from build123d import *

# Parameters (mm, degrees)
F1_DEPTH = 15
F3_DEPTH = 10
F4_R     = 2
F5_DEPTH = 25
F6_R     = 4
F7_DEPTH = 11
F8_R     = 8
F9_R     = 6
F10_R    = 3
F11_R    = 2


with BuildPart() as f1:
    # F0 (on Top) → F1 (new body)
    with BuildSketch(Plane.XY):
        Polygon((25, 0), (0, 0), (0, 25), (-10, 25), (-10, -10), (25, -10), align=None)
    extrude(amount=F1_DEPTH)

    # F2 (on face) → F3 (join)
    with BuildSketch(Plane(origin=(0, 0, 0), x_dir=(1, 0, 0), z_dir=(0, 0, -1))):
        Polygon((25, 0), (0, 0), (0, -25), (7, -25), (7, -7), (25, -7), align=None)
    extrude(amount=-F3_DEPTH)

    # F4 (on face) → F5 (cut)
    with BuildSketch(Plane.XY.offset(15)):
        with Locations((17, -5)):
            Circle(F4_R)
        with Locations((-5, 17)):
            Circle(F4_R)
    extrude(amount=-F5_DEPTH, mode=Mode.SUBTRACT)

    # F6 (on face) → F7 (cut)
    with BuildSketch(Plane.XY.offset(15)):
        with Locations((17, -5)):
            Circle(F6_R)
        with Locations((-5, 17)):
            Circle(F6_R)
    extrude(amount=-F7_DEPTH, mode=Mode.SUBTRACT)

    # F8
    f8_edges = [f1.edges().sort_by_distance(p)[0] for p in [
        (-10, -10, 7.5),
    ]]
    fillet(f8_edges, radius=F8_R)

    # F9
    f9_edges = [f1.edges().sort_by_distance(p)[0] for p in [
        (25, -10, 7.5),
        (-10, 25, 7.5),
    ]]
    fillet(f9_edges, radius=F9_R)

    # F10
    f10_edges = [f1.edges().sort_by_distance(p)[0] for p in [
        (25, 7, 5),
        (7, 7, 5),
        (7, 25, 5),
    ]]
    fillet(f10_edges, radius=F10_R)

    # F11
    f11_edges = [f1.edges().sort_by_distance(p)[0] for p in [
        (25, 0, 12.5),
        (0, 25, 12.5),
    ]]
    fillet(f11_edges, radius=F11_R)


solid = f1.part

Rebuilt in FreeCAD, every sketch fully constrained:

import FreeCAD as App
import Part
import Sketcher
Q = App.Units.Quantity


def edges_at(feature, points):
    """Names of the edges that pass closest to the given points."""
    edges = feature.Shape.Edges
    near = lambda p: min(range(len(edges)), key=lambda i: edges[i].distToShape(Part.Vertex(*p))[0])
    return sorted({f"Edge{near(p) + 1}" for p in points})


def add_polygon(sketch, points):
    """Adds a closed chain of lines whose ends are joined by coincident constraints."""
    first, n = sketch.GeometryCount, len(points)
    for a, b in zip(points, points[1:] + points[:1]):
        sketch.addGeometry(Part.LineSegment(App.Vector(*a, 0), App.Vector(*b, 0)), False)
    for i in range(n):
        sketch.addConstraint(Sketcher.Constraint("Coincident", first + i, 2, first + (i + 1) % n, 1))

doc = App.newDocument("Part")
params = doc.addObject("Spreadsheet::Sheet", "Params")
for row, (alias, value) in enumerate([
    ("sketch1_width", "25 mm"),
    ("sketch1_width2", "10 mm"),
    ("pad1_length", "15 mm"),
    ("sketch2_width", "25 mm"),
    ("sketch2_width2", "7 mm"),
    ("pad2_length", "10 mm"),
    ("sketch3_diameter", "4 mm"),
    ("pocket1_length", "25 mm"),
    ("sketch4_diameter", "8 mm"),
    ("pocket2_length", "11 mm"),
    ("fillet_radius", "8 mm"),
    ("fillet2_radius", "6 mm"),
    ("fillet3_radius", "3 mm"),
    ("fillet4_radius", "2 mm"),
], start=1):
    params.set(f"A{row}", alias)
    params.set(f"B{row}", "=" + value)
    params.setAlias(f"B{row}", alias)

body = doc.addObject("PartDesign::Body", "Body")

sketch1 = body.newObject("Sketcher::SketchObject", "Sketch")
sketch1.AttachmentSupport = (doc.getObject("XY_Plane"), [""])
sketch1.MapMode = "FlatFace"
add_polygon(sketch1, [(25, 0), (0, 0), (0, 25), (-10, 25), (-10, -10), (25, -10)])
sketch1.addConstraint(Sketcher.Constraint("Horizontal", 0))
sketch1.addConstraint(Sketcher.Constraint("Vertical", 1))
sketch1.addConstraint(Sketcher.Constraint("Horizontal", 2))
sketch1.addConstraint(Sketcher.Constraint("Vertical", 3))
sketch1.addConstraint(Sketcher.Constraint("Horizontal", 4))
sketch1.addConstraint(Sketcher.Constraint("Vertical", 5))
sketch1.addConstraint(Sketcher.Constraint("Coincident", 0, 2, -1, 1))
sketch1.addConstraint(Sketcher.Constraint("Equal", 0, 1))
sketch1.addConstraint(Sketcher.Constraint("Equal", 4, 3))
sketch1.addConstraint(Sketcher.Constraint("DistanceX", 0, 2, 0, 1, Q("25 mm")))
sketch1.addConstraint(Sketcher.Constraint("DistanceX", 2, 2, 2, 1, Q("10 mm")))
sketch1.setExpression("Constraints[15]", "Params.sketch1_width")
sketch1.setExpression("Constraints[16]", "Params.sketch1_width2")
pad1 = body.newObject("PartDesign::Pad", "Pad")
pad1.Profile = sketch1
pad1.setExpression("Length", "Params.pad1_length")

sketch2 = body.newObject("Sketcher::SketchObject", "Sketch001")
sketch2.AttachmentSupport = (doc.getObject("XY_Plane"), [""])
sketch2.MapMode = "FlatFace"
add_polygon(sketch2, [(25, 0), (0, 0), (0, 25), (7, 25), (7, 7), (25, 7)])
sketch2.addConstraint(Sketcher.Constraint("Horizontal", 0))
sketch2.addConstraint(Sketcher.Constraint("Vertical", 1))
sketch2.addConstraint(Sketcher.Constraint("Horizontal", 2))
sketch2.addConstraint(Sketcher.Constraint("Vertical", 3))
sketch2.addConstraint(Sketcher.Constraint("Horizontal", 4))
sketch2.addConstraint(Sketcher.Constraint("Vertical", 5))
sketch2.addConstraint(Sketcher.Constraint("Coincident", 0, 2, -1, 1))
sketch2.addConstraint(Sketcher.Constraint("Equal", 0, 1))
sketch2.addConstraint(Sketcher.Constraint("Equal", 4, 3))
sketch2.addConstraint(Sketcher.Constraint("DistanceX", 0, 2, 0, 1, Q("25 mm")))
sketch2.addConstraint(Sketcher.Constraint("DistanceX", 2, 1, 2, 2, Q("7 mm")))
sketch2.setExpression("Constraints[15]", "Params.sketch2_width")
sketch2.setExpression("Constraints[16]", "Params.sketch2_width2")
pad2 = body.newObject("PartDesign::Pad", "Pad001")
pad2.Profile = sketch2
pad2.setExpression("Length", "Params.pad2_length")

sketch3 = body.newObject("Sketcher::SketchObject", "Sketch002")
sketch3.AttachmentSupport = (doc.getObject("XY_Plane"), [""])
sketch3.MapMode = "FlatFace"
sketch3.AttachmentOffset = App.Placement(App.Vector(0, 0, 15), App.Rotation())
sketch3.addGeometry(Part.Circle(App.Vector(17, -5, 0), App.Vector(0, 0, 1), 2), False)
sketch3.addGeometry(Part.Circle(App.Vector(-5, 17, 0), App.Vector(0, 0, 1), 2), False)
sketch3.addConstraint(Sketcher.Constraint("Equal", 0, 1))
sketch3.addConstraint(Sketcher.Constraint("Diameter", 0, Q("4 mm")))
sketch3.addConstraint(Sketcher.Constraint("DistanceX", -1, 1, 0, 3, Q("17 mm")))
sketch3.addConstraint(Sketcher.Constraint("DistanceY", 0, 3, -1, 1, Q("5 mm")))
sketch3.addConstraint(Sketcher.Constraint("DistanceX", 1, 3, -1, 1, Q("5 mm")))
sketch3.addConstraint(Sketcher.Constraint("DistanceY", -1, 1, 1, 3, Q("17 mm")))
sketch3.setExpression("Constraints[1]", "Params.sketch3_diameter")
pocket1 = body.newObject("PartDesign::Pocket", "Pocket")
pocket1.Profile = sketch3
pocket1.setExpression("Length", "Params.pocket1_length")

sketch4 = body.newObject("Sketcher::SketchObject", "Sketch003")
sketch4.AttachmentSupport = (doc.getObject("XY_Plane"), [""])
sketch4.MapMode = "FlatFace"
sketch4.AttachmentOffset = App.Placement(App.Vector(0, 0, 15), App.Rotation())
sketch4.addGeometry(Part.Circle(App.Vector(17, -5, 0), App.Vector(0, 0, 1), 4), False)
sketch4.addGeometry(Part.Circle(App.Vector(-5, 17, 0), App.Vector(0, 0, 1), 4), False)
sketch4.addConstraint(Sketcher.Constraint("Equal", 0, 1))
sketch4.addConstraint(Sketcher.Constraint("Diameter", 0, Q("8 mm")))
sketch4.addConstraint(Sketcher.Constraint("DistanceX", -1, 1, 0, 3, Q("17 mm")))
sketch4.addConstraint(Sketcher.Constraint("DistanceY", 0, 3, -1, 1, Q("5 mm")))
sketch4.addConstraint(Sketcher.Constraint("DistanceX", 1, 3, -1, 1, Q("5 mm")))
sketch4.addConstraint(Sketcher.Constraint("DistanceY", -1, 1, 1, 3, Q("17 mm")))
sketch4.setExpression("Constraints[1]", "Params.sketch4_diameter")
pocket2 = body.newObject("PartDesign::Pocket", "Pocket001")
pocket2.Profile = sketch4
pocket2.setExpression("Length", "Params.pocket2_length")
doc.recompute()

fillet = body.newObject("PartDesign::Fillet", "Fillet")
fillet.Base = (pocket2, edges_at(pocket2, [(-10, -10, 7.5)]))
fillet.setExpression("Radius", "Params.fillet_radius")
doc.recompute()

fillet2 = body.newObject("PartDesign::Fillet", "Fillet001")
fillet2.Base = (fillet, edges_at(fillet, [(25, -10, 7.5), (-10, 25, 7.5)]))
fillet2.setExpression("Radius", "Params.fillet2_radius")
doc.recompute()

fillet3 = body.newObject("PartDesign::Fillet", "Fillet002")
fillet3.Base = (fillet2, edges_at(fillet2, [(25, 7, 5), (7, 7, 5), (7, 25, 5)]))
fillet3.setExpression("Radius", "Params.fillet3_radius")
doc.recompute()

fillet4 = body.newObject("PartDesign::Fillet", "Fillet003")
fillet4.Base = (fillet3, edges_at(fillet3, [(25, 0, 12.5), (0, 25, 12.5)]))
fillet4.setExpression("Radius", "Params.fillet4_radius")

doc.recompute()
